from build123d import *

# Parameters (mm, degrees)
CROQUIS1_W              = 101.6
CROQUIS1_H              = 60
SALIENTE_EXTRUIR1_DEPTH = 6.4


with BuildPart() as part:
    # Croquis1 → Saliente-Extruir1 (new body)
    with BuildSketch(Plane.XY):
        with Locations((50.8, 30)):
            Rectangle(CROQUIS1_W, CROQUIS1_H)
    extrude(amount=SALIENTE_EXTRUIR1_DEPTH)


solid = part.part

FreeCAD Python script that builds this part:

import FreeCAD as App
import Part
import Sketcher
Q = App.Units.Quantity

doc = App.newDocument("Part")
body = doc.addObject("PartDesign::Body", "Body")

# Sketch on XY plane
sketch1 = doc.addObject("Sketcher::SketchObject", "Sketch")
body.addObject(sketch1)
sketch1.AttachmentSupport = (doc.XY_Plane, [""])
sketch1.MapMode = "FlatFace"
sketch1.addGeometry(Part.LineSegment(App.Vector(0, 60, 0), App.Vector(0, 0, 0)), False)
sketch1.addGeometry(Part.LineSegment(App.Vector(0, 0, 0), App.Vector(101.6, 0, 0)), False)
sketch1.addGeometry(Part.LineSegment(App.Vector(101.6, 0, 0), App.Vector(101.6, 60, 0)), False)
sketch1.addGeometry(Part.LineSegment(App.Vector(101.6, 60, 0), App.Vector(0, 60, 0)), False)
sketch1.addConstraint(Sketcher.Constraint("Coincident", 0, 2, 1, 1))
sketch1.addConstraint(Sketcher.Constraint("Coincident", 1, 2, 2, 1))
sketch1.addConstraint(Sketcher.Constraint("Coincident", 2, 2, 3, 1))
sketch1.addConstraint(Sketcher.Constraint("Coincident", 3, 2, 0, 1))
sketch1.addConstraint(Sketcher.Constraint("Vertical", 0))
sketch1.addConstraint(Sketcher.Constraint("Horizontal", 1))
sketch1.addConstraint(Sketcher.Constraint("Vertical", 2))
sketch1.addConstraint(Sketcher.Constraint("Horizontal", 3))
sketch1.addConstraint(Sketcher.Constraint("Coincident", 0, 2, -1, 1))
sketch1.addConstraint(Sketcher.Constraint("DistanceY", 0, 2, 0, 1, Q("60 mm")))
sketch1.addConstraint(Sketcher.Constraint("DistanceX", 1, 1, 1, 2, Q("101.6 mm")))
pad1 = doc.addObject("PartDesign::Pad", "Pad")
body.addObject(pad1)
pad1.Profile = sketch1
pad1.Length = 6.4

doc.recompute()
